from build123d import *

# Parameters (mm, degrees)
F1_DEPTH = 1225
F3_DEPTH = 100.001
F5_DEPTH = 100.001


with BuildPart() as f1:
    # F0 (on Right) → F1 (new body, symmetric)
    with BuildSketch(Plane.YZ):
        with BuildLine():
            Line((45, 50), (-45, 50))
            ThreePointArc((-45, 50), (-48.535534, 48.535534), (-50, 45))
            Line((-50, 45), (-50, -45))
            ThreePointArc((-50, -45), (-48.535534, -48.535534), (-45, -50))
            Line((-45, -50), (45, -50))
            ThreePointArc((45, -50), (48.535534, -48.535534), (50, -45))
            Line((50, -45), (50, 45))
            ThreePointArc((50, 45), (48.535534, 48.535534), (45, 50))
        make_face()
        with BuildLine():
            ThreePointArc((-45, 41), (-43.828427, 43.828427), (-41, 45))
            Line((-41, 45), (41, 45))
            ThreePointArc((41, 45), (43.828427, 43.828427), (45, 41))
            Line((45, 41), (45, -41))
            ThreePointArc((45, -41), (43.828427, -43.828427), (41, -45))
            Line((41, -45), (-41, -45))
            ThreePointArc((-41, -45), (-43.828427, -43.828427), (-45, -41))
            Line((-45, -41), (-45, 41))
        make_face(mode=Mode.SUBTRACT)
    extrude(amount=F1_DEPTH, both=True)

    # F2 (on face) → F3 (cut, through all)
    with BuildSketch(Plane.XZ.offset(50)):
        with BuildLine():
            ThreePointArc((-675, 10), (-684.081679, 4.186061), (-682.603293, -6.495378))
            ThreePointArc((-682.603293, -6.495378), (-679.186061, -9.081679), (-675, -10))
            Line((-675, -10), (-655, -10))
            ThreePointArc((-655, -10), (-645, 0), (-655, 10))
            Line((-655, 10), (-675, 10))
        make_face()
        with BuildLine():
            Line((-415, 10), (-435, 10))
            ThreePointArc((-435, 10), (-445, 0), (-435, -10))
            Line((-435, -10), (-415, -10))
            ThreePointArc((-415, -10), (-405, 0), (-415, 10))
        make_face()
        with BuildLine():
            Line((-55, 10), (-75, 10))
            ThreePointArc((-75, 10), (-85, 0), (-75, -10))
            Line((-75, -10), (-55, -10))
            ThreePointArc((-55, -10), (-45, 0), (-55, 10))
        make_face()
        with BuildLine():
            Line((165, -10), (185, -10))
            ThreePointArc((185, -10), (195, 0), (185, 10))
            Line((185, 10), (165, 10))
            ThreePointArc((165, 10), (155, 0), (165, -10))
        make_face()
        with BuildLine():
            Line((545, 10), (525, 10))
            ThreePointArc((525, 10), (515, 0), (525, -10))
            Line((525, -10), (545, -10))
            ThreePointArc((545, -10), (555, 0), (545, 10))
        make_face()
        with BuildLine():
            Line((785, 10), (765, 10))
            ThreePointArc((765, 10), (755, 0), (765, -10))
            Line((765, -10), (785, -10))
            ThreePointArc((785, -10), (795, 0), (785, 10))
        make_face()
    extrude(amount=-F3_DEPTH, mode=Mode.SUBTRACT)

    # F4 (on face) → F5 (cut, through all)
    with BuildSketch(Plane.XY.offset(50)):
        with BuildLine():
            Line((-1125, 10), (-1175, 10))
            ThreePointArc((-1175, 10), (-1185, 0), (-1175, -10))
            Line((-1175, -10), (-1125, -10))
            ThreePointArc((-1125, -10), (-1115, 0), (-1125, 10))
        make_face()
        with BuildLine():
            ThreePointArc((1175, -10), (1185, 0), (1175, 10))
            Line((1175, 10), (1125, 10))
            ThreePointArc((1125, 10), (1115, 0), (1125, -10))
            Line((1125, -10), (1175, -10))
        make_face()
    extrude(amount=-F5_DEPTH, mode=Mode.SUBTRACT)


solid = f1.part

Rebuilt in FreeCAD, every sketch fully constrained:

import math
import FreeCAD as App
import Part
import Sketcher
from FreeCAD import Vector

doc = App.newDocument("Part")
params = doc.addObject("Spreadsheet::Sheet", "Params")
for row, (alias, value) in enumerate([
    ("sketch1_radius", "5 mm"),
    ("sketch1_radius2", "4 mm"),
    ("sketch1_width", "90 mm"),
    ("pad1_length", "2450 mm"),
    ("sketch2_radius", "10 mm"),
    ("sketch2_width", "20 mm"),
    ("sketch3_radius", "10 mm"),
    ("sketch3_width", "50 mm"),
], start=1):
    params.set(f"A{row}", alias)
    params.set(f"B{row}", "=" + value)
    params.setAlias(f"B{row}", alias)

body = doc.addObject("PartDesign::Body", "Body")

sketch1 = body.newObject("Sketcher::SketchObject", "Sketch")
sketch1.AttachmentSupport = (doc.getObject("YZ_Plane"), [""])
sketch1.MapMode = "FlatFace"
sketch1.addGeometry(Part.LineSegment(Vector(45, 50, 0), Vector(-45, 50, 0)), False)
sketch1.addGeometry(Part.ArcOfCircle(Part.Circle(Vector(-45, 45, 0), Vector(0, 0, 1), 5), math.radians(89.999996), math.radians(180.000004)), False)
sketch1.addGeometry(Part.LineSegment(Vector(-50, 45, 0), Vector(-50, -45, 0)), False)
sketch1.addGeometry(Part.ArcOfCircle(Part.Circle(Vector(-45, -45, 0), Vector(0, 0, 1), 5), math.radians(179.999996), math.radians(270.000004)), False)
sketch1.addGeometry(Part.LineSegment(Vector(-45, -50, 0), Vector(45, -50, 0)), False)
sketch1.addGeometry(Part.ArcOfCircle(Part.Circle(Vector(45, -45, 0), Vector(0, 0, 1), 5), math.radians(-90.000004), math.radians(0.000004)), False)
sketch1.addGeometry(Part.LineSegment(Vector(50, -45, 0), Vector(50, 45, 0)), False)
sketch1.addGeometry(Part.ArcOfCircle(Part.Circle(Vector(45, 45, 0), Vector(0, 0, 1), 5), math.radians(-0.000004), math.radians(90.000004)), False)
sketch1.addGeometry(Part.LineSegment(Vector(-45, -41, 0), Vector(-45, 41, 0)), False)
sketch1.addGeometry(Part.ArcOfCircle(Part.Circle(Vector(-41, 41, 0), Vector(0, 0, 1), 4), math.radians(90.000006), math.radians(179.999994)), False)
sketch1.addGeometry(Part.LineSegment(Vector(-41, 45, 0), Vector(41, 45, 0)), False)
sketch1.addGeometry(Part.ArcOfCircle(Part.Circle(Vector(41, 41, 0), Vector(0, 0, 1), 4), math.radians(0.000006), math.radians(89.999994)), False)
sketch1.addGeometry(Part.LineSegment(Vector(45, 41, 0), Vector(45, -41, 0)), False)
sketch1.addGeometry(Part.ArcOfCircle(Part.Circle(Vector(41, -41, 0), Vector(0, 0, 1), 4), math.radians(-89.999994), math.radians(-0.000006)), False)
sketch1.addGeometry(Part.LineSegment(Vector(41, -45, 0), Vector(-41, -45, 0)), False)
sketch1.addGeometry(Part.ArcOfCircle(Part.Circle(Vector(-41, -41, 0), Vector(0, 0, 1), 4), math.radians(-179.999994), math.radians(-90.000006)), False)
sketch1.addConstraint(Sketcher.Constraint("Tangent", 0, 2, 1, 1))
sketch1.addConstraint(Sketcher.Constraint("Tangent", 1, 2, 2, 1))
sketch1.addConstraint(Sketcher.Constraint("Tangent", 2, 2, 3, 1))
sketch1.addConstraint(Sketcher.Constraint("Tangent", 3, 2, 4, 1))
sketch1.addConstraint(Sketcher.Constraint("Tangent", 4, 2, 5, 1))
sketch1.addConstraint(Sketcher.Constraint("Tangent", 5, 2, 6, 1))
sketch1.addConstraint(Sketcher.Constraint("Tangent", 6, 2, 7, 1))
sketch1.addConstraint(Sketcher.Constraint("Tangent", 7, 2, 0, 1))
sketch1.addConstraint(Sketcher.Constraint("Tangent", 8, 2, 9, 2))
sketch1.addConstraint(Sketcher.Constraint("Tangent", 9, 1, 10, 1))
sketch1.addConstraint(Sketcher.Constraint("Tangent", 10, 2, 11, 2))
sketch1.addConstraint(Sketcher.Constraint("Tangent", 11, 1, 12, 1))
sketch1.addConstraint(Sketcher.Constraint("Tangent", 12, 2, 13, 2))
sketch1.addConstraint(Sketcher.Constraint("Tangent", 13, 1, 14, 1))
sketch1.addConstraint(Sketcher.Constraint("Tangent", 14, 2, 15, 2))
sketch1.addConstraint(Sketcher.Constraint("Tangent", 15, 1, 8, 1))
sketch1.addConstraint(Sketcher.Constraint("Horizontal", 0))
sketch1.addConstraint(Sketcher.Constraint("Vertical", 2))
sketch1.addConstraint(Sketcher.Constraint("Horizontal", 4))
sketch1.addConstraint(Sketcher.Constraint("Vertical", 6))
sketch1.addConstraint(Sketcher.Constraint("Vertical", 8))
sketch1.addConstraint(Sketcher.Constraint("Horizontal", 10))
sketch1.addConstraint(Sketcher.Constraint("Vertical", 12))
sketch1.addConstraint(Sketcher.Constraint("Horizontal", 14))
sketch1.addConstraint(Sketcher.Constraint("Equal", 1, 3))
sketch1.addConstraint(Sketcher.Constraint("Equal", 3, 5))
sketch1.addConstraint(Sketcher.Constraint("Equal", 5, 7))
sketch1.addConstraint(Sketcher.Constraint("Equal", 9, 11))
sketch1.addConstraint(Sketcher.Constraint("Equal", 11, 13))
sketch1.addConstraint(Sketcher.Constraint("Equal", 13, 15))
sketch1.addConstraint(Sketcher.Constraint("Symmetric", 1, 3, 5, 3, -1, 1))
sketch1.addConstraint(Sketcher.Constraint("Symmetric", 9, 3, 13, 3, -1, 1))
sketch1.addConstraint(Sketcher.Constraint("Horizontal", 6, 2, 9, 1))
sketch1.addConstraint(Sketcher.Constraint("Vertical", 3, 2, 8, 2))
sketch1.addConstraint(Sketcher.Constraint("Equal", 4, 2))
sketch1.addConstraint(Sketcher.Constraint("Radius", 1, 5.0))
sketch1.addConstraint(Sketcher.Constraint("Radius", 9, 4.0))
sketch1.addConstraint(Sketcher.Constraint("DistanceX", 0, 2, 0, 1, 90.0))
sketch1.setExpression("Constraints[35]", "Params.sketch1_radius")
sketch1.setExpression("Constraints[36]", "Params.sketch1_radius2")
sketch1.setExpression("Constraints[37]", "Params.sketch1_width")
pad1 = body.newObject("PartDesign::Pad", "Pad")
pad1.Profile = sketch1
pad1.setExpression("Length", "Params.pad1_length")
pad1.Midplane = True

sketch2 = body.newObject("Sketcher::SketchObject", "Sketch001")
sketch2.AttachmentSupport = (doc.getObject("XZ_Plane"), [""])
sketch2.MapMode = "FlatFace"
sketch2.AttachmentOffset = App.Placement(Vector(0, 0, 50), App.Rotation())
sketch2.addGeometry(Part.ArcOfCircle(Part.Circle(Vector(-675, 0, 0), Vector(0, 0, 1), 10), math.radians(90), math.radians(220.506763)), False)
sketch2.addGeometry(Part.ArcOfCircle(Part.Circle(Vector(-675, 0, 0), Vector(0, 0, 1), 10), math.radians(-139.493237), math.radians(-90)), False)
sketch2.addGeometry(Part.LineSegment(Vector(-675, -10, 0), Vector(-655, -10, 0)), False)
sketch2.addGeometry(Part.ArcOfCircle(Part.Circle(Vector(-655, 0, 0), Vector(0, 0, 1), 10), math.radians(-90), math.radians(90)), False)
sketch2.addGeometry(Part.LineSegment(Vector(-655, 10, 0), Vector(-675, 10, 0)), False)
sketch2.addGeometry(Part.LineSegment(Vector(-415, 10, 0), Vector(-435, 10, 0)), False)
sketch2.addGeometry(Part.ArcOfCircle(Part.Circle(Vector(-435, 0, 0), Vector(0, 0, 1), 10), math.radians(90), math.radians(270)), False)
sketch2.addGeometry(Part.LineSegment(Vector(-435, -10, 0), Vector(-415, -10, 0)), False)
sketch2.addGeometry(Part.ArcOfCircle(Part.Circle(Vector(-415, 0, 0), Vector(0, 0, 1), 10), math.radians(-90), math.radians(90)), False)
sketch2.addGeometry(Part.LineSegment(Vector(-55, 10, 0), Vector(-75, 10, 0)), False)
sketch2.addGeometry(Part.ArcOfCircle(Part.Circle(Vector(-75, 0, 0), Vector(0, 0, 1), 10), math.radians(90), math.radians(270)), False)
sketch2.addGeometry(Part.LineSegment(Vector(-75, -10, 0), Vector(-55, -10, 0)), False)
sketch2.addGeometry(Part.ArcOfCircle(Part.Circle(Vector(-55, 0, 0), Vector(0, 0, 1), 10), math.radians(-90), math.radians(90)), False)
sketch2.addGeometry(Part.LineSegment(Vector(165, -10, 0), Vector(185, -10, 0)), False)
sketch2.addGeometry(Part.ArcOfCircle(Part.Circle(Vector(185, 0, 0), Vector(0, 0, 1), 10), math.radians(-90), math.radians(90)), False)
sketch2.addGeometry(Part.LineSegment(Vector(185, 10, 0), Vector(165, 10, 0)), False)
sketch2.addGeometry(Part.ArcOfCircle(Part.Circle(Vector(165, 0, 0), Vector(0, 0, 1), 10), math.radians(90), math.radians(270)), False)
sketch2.addGeometry(Part.LineSegment(Vector(545, 10, 0), Vector(525, 10, 0)), False)
sketch2.addGeometry(Part.ArcOfCircle(Part.Circle(Vector(525, 0, 0), Vector(0, 0, 1), 10), math.radians(90), math.radians(270)), False)
sketch2.addGeometry(Part.LineSegment(Vector(525, -10, 0), Vector(545, -10, 0)), False)
sketch2.addGeometry(Part.ArcOfCircle(Part.Circle(Vector(545, 0, 0), Vector(0, 0, 1), 10), math.radians(-90), math.radians(90)), False)
sketch2.addGeometry(Part.LineSegment(Vector(785, 10, 0), Vector(765, 10, 0)), False)
sketch2.addGeometry(Part.ArcOfCircle(Part.Circle(Vector(765, 0, 0), Vector(0, 0, 1), 10), math.radians(90), math.radians(270)), False)
sketch2.addGeometry(Part.LineSegment(Vector(765, -10, 0), Vector(785, -10, 0)), False)
sketch2.addGeometry(Part.ArcOfCircle(Part.Circle(Vector(785, 0, 0), Vector(0, 0, 1), 10), math.radians(-90), math.radians(90)), False)
sketch2.addConstraint(Sketcher.Constraint("Tangent", 0, 2, 1, 1))
sketch2.addConstraint(Sketcher.Constraint("Tangent", 1, 2, 2, 1))
sketch2.addConstraint(Sketcher.Constraint("Tangent", 2, 2, 3, 1))
sketch2.addConstraint(Sketcher.Constraint("Tangent", 3, 2, 4, 1))
sketch2.addConstraint(Sketcher.Constraint("Tangent", 4, 2, 0, 1))
sketch2.addConstraint(Sketcher.Constraint("Tangent", 5, 2, 6, 1))
sketch2.addConstraint(Sketcher.Constraint("Tangent", 6, 2, 7, 1))
sketch2.addConstraint(Sketcher.Constraint("Tangent", 7, 2, 8, 1))
sketch2.addConstraint(Sketcher.Constraint("Tangent", 8, 2, 5, 1))
sketch2.addConstraint(Sketcher.Constraint("Tangent", 9, 2, 10, 1))
sketch2.addConstraint(Sketcher.Constraint("Tangent", 10, 2, 11, 1))
sketch2.addConstraint(Sketcher.Constraint("Tangent", 11, 2, 12, 1))
sketch2.addConstraint(Sketcher.Constraint("Tangent", 12, 2, 9, 1))
sketch2.addConstraint(Sketcher.Constraint("Tangent", 13, 2, 14, 1))
sketch2.addConstraint(Sketcher.Constraint("Tangent", 14, 2, 15, 1))
sketch2.addConstraint(Sketcher.Constraint("Tangent", 15, 2, 16, 1))
sketch2.addConstraint(Sketcher.Constraint("Tangent", 16, 2, 13, 1))
sketch2.addConstraint(Sketcher.Constraint("Tangent", 17, 2, 18, 1))
sketch2.addConstraint(Sketcher.Constraint("Tangent", 18, 2, 19, 1))
sketch2.addConstraint(Sketcher.Constraint("Tangent", 19, 2, 20, 1))
sketch2.addConstraint(Sketcher.Constraint("Tangent", 20, 2, 17, 1))
sketch2.addConstraint(Sketcher.Constraint("Tangent", 21, 2, 22, 1))
sketch2.addConstraint(Sketcher.Constraint("Tangent", 22, 2, 23, 1))
sketch2.addConstraint(Sketcher.Constraint("Tangent", 23, 2, 24, 1))
sketch2.addConstraint(Sketcher.Constraint("Tangent", 24, 2, 21, 1))
sketch2.addConstraint(Sketcher.Constraint("Horizontal", 2))
sketch2.addConstraint(Sketcher.Constraint("Horizontal", 4))
sketch2.addConstraint(Sketcher.Constraint("Horizontal", 5))
sketch2.addConstraint(Sketcher.Constraint("Horizontal", 7))
sketch2.addConstraint(Sketcher.Constraint("Horizontal", 9))
sketch2.addConstraint(Sketcher.Constraint("Horizontal", 11))
sketch2.addConstraint(Sketcher.Constraint("Horizontal", 13))
sketch2.addConstraint(Sketcher.Constraint("Horizontal", 15))
sketch2.addConstraint(Sketcher.Constraint("Horizontal", 17))
sketch2.addConstraint(Sketcher.Constraint("Horizontal", 19))
sketch2.addConstraint(Sketcher.Constraint("Horizontal", 21))
sketch2.addConstraint(Sketcher.Constraint("Horizontal", 23))
sketch2.addConstraint(Sketcher.Constraint("Equal", 0, 1))
sketch2.addConstraint(Sketcher.Constraint("Equal", 3, 6))
sketch2.addConstraint(Sketcher.Constraint("Equal", 8, 10))
sketch2.addConstraint(Sketcher.Constraint("Equal", 12, 14))
sketch2.addConstraint(Sketcher.Constraint("Equal", 16, 18))
sketch2.addConstraint(Sketcher.Constraint("Equal", 20, 22))
sketch2.addConstraint(Sketcher.Constraint("PointOnObject", 0, 3, -1))
sketch2.addConstraint(Sketcher.Constraint("PointOnObject", 6, 3, -1))
sketch2.addConstraint(Sketcher.Constraint("PointOnObject", 10, 3, -1))
sketch2.addConstraint(Sketcher.Constraint("PointOnObject", 14, 3, -1))
sketch2.addConstraint(Sketcher.Constraint("PointOnObject", 18, 3, -1))
sketch2.addConstraint(Sketcher.Constraint("PointOnObject", 22, 3, -1))
sketch2.addConstraint(Sketcher.Constraint("Equal", 4, 5))
sketch2.addConstraint(Sketcher.Constraint("Equal", 7, 9))
sketch2.addConstraint(Sketcher.Constraint("Equal", 11, 13))
sketch2.addConstraint(Sketcher.Constraint("Equal", 15, 17))
sketch2.addConstraint(Sketcher.Constraint("Equal", 19, 21))
sketch2.addConstraint(Sketcher.Constraint("Radius", 0, 10.0))
sketch2.addConstraint(Sketcher.Constraint("DistanceX", 2, 1, 2, 2, 20.0))
sketch2.addConstraint(Sketcher.Constraint("DistanceX", 0, 3, -1, 1, 675.0))
sketch2.addConstraint(Sketcher.Constraint("DistanceX", 6, 3, -1, 1, 435.0))
sketch2.addConstraint(Sketcher.Constraint("DistanceX", 10, 3, -1, 1, 75.0))
sketch2.addConstraint(Sketcher.Constraint("DistanceX", -1, 1, 14, 3, 185.0))
sketch2.addConstraint(Sketcher.Constraint("DistanceX", -1, 1, 18, 3, 525.0))
sketch2.addConstraint(Sketcher.Constraint("DistanceX", -1, 1, 22, 3, 765.0))
sketch2.addConstraint(Sketcher.Constraint("DistanceY", 0, 2, 0, 3, 6.495378))
sketch2.setExpression("Constraints[54]", "Params.sketch2_radius")
sketch2.setExpression("Constraints[55]", "Params.sketch2_width")
pocket1 = body.newObject("PartDesign::Pocket", "Pocket")
pocket1.Profile = sketch2
pocket1.Type = "ThroughAll"

sketch3 = body.newObject("Sketcher::SketchObject", "Sketch002")
sketch3.AttachmentSupport = (doc.getObject("XY_Plane"), [""])
sketch3.MapMode = "FlatFace"
sketch3.AttachmentOffset = App.Placement(Vector(0, 0, 50), App.Rotation())
sketch3.addGeometry(Part.LineSegment(Vector(-1125, 10, 0), Vector(-1175, 10, 0)), False)
sketch3.addGeometry(Part.ArcOfCircle(Part.Circle(Vector(-1175, 0, 0), Vector(0, 0, 1), 10), math.radians(90), math.radians(270)), False)
sketch3.addGeometry(Part.LineSegment(Vector(-1175, -10, 0), Vector(-1125, -10, 0)), False)
sketch3.addGeometry(Part.ArcOfCircle(Part.Circle(Vector(-1125, 0, 0), Vector(0, 0, 1), 10), math.radians(-90), math.radians(90)), False)
sketch3.addGeometry(Part.ArcOfCircle(Part.Circle(Vector(1175, 0, 0), Vector(0, 0, 1), 10), math.radians(-90), math.radians(90)), False)
sketch3.addGeometry(Part.LineSegment(Vector(1175, 10, 0), Vector(1125, 10, 0)), False)
sketch3.addGeometry(Part.ArcOfCircle(Part.Circle(Vector(1125, 0, 0), Vector(0, 0, 1), 10), math.radians(90), math.radians(270)), False)
sketch3.addGeometry(Part.LineSegment(Vector(1125, -10, 0), Vector(1175, -10, 0)), False)
sketch3.addConstraint(Sketcher.Constraint("Tangent", 0, 2, 1, 1))
sketch3.addConstraint(Sketcher.Constraint("Tangent", 1, 2, 2, 1))
sketch3.addConstraint(Sketcher.Constraint("Tangent", 2, 2, 3, 1))
sketch3.addConstraint(Sketcher.Constraint("Tangent", 3, 2, 0, 1))
sketch3.addConstraint(Sketcher.Constraint("Tangent", 4, 2, 5, 1))
sketch3.addConstraint(Sketcher.Constraint("Tangent", 5, 2, 6, 1))
sketch3.addConstraint(Sketcher.Constraint("Tangent", 6, 2, 7, 1))
sketch3.addConstraint(Sketcher.Constraint("Tangent", 7, 2, 4, 1))
sketch3.addConstraint(Sketcher.Constraint("Horizontal", 0))
sketch3.addConstraint(Sketcher.Constraint("Horizontal", 2))
sketch3.addConstraint(Sketcher.Constraint("Horizontal", 5))
sketch3.addConstraint(Sketcher.Constraint("Horizontal", 7))
sketch3.addConstraint(Sketcher.Constraint("Equal", 3, 4))
sketch3.addConstraint(Sketcher.Constraint("Symmetric", 1, 3, 4, 3, -1, 1))
sketch3.addConstraint(Sketcher.Constraint("Symmetric", 3, 3, 6, 3, -2))
sketch3.addConstraint(Sketcher.Constraint("Radius", 1, 10.0))
sketch3.addConstraint(Sketcher.Constraint("DistanceX", 0, 2, 0, 1, 50.0))
sketch3.addConstraint(Sketcher.Constraint("DistanceX", 1, 3, -1, 1, 1175.0))
sketch3.setExpression("Constraints[15]", "Params.sketch3_radius")
sketch3.setExpression("Constraints[16]", "Params.sketch3_width")
pocket2 = body.newObject("PartDesign::Pocket", "Pocket001")
pocket2.Profile = sketch3
pocket2.Type = "ThroughAll"

doc.recompute()
